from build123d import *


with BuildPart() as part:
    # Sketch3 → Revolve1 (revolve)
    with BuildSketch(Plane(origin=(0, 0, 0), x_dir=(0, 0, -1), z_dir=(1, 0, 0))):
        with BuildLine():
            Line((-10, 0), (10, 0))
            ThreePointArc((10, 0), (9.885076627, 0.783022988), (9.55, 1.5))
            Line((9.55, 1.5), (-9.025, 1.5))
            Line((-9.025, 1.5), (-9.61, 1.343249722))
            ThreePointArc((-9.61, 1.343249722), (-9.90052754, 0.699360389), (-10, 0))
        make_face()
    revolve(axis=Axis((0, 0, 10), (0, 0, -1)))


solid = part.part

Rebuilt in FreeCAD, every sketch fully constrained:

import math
import FreeCAD as App
import Part
import Sketcher
Q = App.Units.Quantity

doc = App.newDocument("Part")
body = doc.addObject("PartDesign::Body", "Body")

# Sketch on YZ plane
sketch1 = body.newObject("Sketcher::SketchObject", "Sketch")
sketch1.AttachmentSupport = (doc.getObject("YZ_Plane"), [""])
sketch1.MapMode = "FlatFace"
sketch1.addGeometry(Part.LineSegment(App.Vector(0, 10, 0), App.Vector(0, -10, 0)), False)
sketch1.addGeometry(Part.ArcOfCircle(Part.Circle(App.Vector(0, -7.3, 0), App.Vector(0, 0, 1), 2.7), math.radians(-90), math.radians(-57)), False)
sketch1.addGeometry(Part.LineSegment(App.Vector(1.5, -9.6, 0), App.Vector(1.5, 9, 0)), False)
sketch1.addGeometry(Part.LineSegment(App.Vector(1.5, 9, 0), App.Vector(1.3, 9.6, 0)), False)
sketch1.addGeometry(Part.ArcOfCircle(Part.Circle(App.Vector(0, 7.5, 0), App.Vector(0, 0, 1), 2.5), math.radians(58), math.radians(90)), False)
sketch1.addConstraint(Sketcher.Constraint("Coincident", 0, 2, 1, 1))
sketch1.addConstraint(Sketcher.Constraint("Coincident", 1, 2, 2, 1))
sketch1.addConstraint(Sketcher.Constraint("Coincident", 2, 2, 3, 1))
sketch1.addConstraint(Sketcher.Constraint("Coincident", 3, 2, 4, 1))
sketch1.addConstraint(Sketcher.Constraint("Coincident", 4, 2, 0, 1))
sketch1.addConstraint(Sketcher.Constraint("Vertical", 0))
sketch1.addConstraint(Sketcher.Constraint("Vertical", 2))
sketch1.addConstraint(Sketcher.Constraint("Symmetric", 0, 2, 4, 2, -1, 1))
sketch1.addConstraint(Sketcher.Constraint("PointOnObject", 1, 3, -2))
sketch1.addConstraint(Sketcher.Constraint("PointOnObject", 4, 3, -2))
sketch1.addConstraint(Sketcher.Constraint("DistanceY", 0, 2, 0, 1, 20.0))
sketch1.addConstraint(Sketcher.Constraint("Angle", 3, Q("105 deg")))
sketch1.addConstraint(Sketcher.Constraint("Radius", 1, 2.725))
sketch1.addConstraint(Sketcher.Constraint("DistanceX", -1, 1, 1, 2, 1.5))
sketch1.addConstraint(Sketcher.Constraint("DistanceY", 1, 3, 2, 2, 16.3))
sketch1.addConstraint(Sketcher.Constraint("DistanceY", -1, 1, 3, 2, 9.61))
revolution = body.newObject("PartDesign::Revolution", "Revolution")
revolution.Profile = sketch1
revolution.ReferenceAxis = (sketch1, ["V_Axis"])
revolution.Angle = 360

doc.recompute()
